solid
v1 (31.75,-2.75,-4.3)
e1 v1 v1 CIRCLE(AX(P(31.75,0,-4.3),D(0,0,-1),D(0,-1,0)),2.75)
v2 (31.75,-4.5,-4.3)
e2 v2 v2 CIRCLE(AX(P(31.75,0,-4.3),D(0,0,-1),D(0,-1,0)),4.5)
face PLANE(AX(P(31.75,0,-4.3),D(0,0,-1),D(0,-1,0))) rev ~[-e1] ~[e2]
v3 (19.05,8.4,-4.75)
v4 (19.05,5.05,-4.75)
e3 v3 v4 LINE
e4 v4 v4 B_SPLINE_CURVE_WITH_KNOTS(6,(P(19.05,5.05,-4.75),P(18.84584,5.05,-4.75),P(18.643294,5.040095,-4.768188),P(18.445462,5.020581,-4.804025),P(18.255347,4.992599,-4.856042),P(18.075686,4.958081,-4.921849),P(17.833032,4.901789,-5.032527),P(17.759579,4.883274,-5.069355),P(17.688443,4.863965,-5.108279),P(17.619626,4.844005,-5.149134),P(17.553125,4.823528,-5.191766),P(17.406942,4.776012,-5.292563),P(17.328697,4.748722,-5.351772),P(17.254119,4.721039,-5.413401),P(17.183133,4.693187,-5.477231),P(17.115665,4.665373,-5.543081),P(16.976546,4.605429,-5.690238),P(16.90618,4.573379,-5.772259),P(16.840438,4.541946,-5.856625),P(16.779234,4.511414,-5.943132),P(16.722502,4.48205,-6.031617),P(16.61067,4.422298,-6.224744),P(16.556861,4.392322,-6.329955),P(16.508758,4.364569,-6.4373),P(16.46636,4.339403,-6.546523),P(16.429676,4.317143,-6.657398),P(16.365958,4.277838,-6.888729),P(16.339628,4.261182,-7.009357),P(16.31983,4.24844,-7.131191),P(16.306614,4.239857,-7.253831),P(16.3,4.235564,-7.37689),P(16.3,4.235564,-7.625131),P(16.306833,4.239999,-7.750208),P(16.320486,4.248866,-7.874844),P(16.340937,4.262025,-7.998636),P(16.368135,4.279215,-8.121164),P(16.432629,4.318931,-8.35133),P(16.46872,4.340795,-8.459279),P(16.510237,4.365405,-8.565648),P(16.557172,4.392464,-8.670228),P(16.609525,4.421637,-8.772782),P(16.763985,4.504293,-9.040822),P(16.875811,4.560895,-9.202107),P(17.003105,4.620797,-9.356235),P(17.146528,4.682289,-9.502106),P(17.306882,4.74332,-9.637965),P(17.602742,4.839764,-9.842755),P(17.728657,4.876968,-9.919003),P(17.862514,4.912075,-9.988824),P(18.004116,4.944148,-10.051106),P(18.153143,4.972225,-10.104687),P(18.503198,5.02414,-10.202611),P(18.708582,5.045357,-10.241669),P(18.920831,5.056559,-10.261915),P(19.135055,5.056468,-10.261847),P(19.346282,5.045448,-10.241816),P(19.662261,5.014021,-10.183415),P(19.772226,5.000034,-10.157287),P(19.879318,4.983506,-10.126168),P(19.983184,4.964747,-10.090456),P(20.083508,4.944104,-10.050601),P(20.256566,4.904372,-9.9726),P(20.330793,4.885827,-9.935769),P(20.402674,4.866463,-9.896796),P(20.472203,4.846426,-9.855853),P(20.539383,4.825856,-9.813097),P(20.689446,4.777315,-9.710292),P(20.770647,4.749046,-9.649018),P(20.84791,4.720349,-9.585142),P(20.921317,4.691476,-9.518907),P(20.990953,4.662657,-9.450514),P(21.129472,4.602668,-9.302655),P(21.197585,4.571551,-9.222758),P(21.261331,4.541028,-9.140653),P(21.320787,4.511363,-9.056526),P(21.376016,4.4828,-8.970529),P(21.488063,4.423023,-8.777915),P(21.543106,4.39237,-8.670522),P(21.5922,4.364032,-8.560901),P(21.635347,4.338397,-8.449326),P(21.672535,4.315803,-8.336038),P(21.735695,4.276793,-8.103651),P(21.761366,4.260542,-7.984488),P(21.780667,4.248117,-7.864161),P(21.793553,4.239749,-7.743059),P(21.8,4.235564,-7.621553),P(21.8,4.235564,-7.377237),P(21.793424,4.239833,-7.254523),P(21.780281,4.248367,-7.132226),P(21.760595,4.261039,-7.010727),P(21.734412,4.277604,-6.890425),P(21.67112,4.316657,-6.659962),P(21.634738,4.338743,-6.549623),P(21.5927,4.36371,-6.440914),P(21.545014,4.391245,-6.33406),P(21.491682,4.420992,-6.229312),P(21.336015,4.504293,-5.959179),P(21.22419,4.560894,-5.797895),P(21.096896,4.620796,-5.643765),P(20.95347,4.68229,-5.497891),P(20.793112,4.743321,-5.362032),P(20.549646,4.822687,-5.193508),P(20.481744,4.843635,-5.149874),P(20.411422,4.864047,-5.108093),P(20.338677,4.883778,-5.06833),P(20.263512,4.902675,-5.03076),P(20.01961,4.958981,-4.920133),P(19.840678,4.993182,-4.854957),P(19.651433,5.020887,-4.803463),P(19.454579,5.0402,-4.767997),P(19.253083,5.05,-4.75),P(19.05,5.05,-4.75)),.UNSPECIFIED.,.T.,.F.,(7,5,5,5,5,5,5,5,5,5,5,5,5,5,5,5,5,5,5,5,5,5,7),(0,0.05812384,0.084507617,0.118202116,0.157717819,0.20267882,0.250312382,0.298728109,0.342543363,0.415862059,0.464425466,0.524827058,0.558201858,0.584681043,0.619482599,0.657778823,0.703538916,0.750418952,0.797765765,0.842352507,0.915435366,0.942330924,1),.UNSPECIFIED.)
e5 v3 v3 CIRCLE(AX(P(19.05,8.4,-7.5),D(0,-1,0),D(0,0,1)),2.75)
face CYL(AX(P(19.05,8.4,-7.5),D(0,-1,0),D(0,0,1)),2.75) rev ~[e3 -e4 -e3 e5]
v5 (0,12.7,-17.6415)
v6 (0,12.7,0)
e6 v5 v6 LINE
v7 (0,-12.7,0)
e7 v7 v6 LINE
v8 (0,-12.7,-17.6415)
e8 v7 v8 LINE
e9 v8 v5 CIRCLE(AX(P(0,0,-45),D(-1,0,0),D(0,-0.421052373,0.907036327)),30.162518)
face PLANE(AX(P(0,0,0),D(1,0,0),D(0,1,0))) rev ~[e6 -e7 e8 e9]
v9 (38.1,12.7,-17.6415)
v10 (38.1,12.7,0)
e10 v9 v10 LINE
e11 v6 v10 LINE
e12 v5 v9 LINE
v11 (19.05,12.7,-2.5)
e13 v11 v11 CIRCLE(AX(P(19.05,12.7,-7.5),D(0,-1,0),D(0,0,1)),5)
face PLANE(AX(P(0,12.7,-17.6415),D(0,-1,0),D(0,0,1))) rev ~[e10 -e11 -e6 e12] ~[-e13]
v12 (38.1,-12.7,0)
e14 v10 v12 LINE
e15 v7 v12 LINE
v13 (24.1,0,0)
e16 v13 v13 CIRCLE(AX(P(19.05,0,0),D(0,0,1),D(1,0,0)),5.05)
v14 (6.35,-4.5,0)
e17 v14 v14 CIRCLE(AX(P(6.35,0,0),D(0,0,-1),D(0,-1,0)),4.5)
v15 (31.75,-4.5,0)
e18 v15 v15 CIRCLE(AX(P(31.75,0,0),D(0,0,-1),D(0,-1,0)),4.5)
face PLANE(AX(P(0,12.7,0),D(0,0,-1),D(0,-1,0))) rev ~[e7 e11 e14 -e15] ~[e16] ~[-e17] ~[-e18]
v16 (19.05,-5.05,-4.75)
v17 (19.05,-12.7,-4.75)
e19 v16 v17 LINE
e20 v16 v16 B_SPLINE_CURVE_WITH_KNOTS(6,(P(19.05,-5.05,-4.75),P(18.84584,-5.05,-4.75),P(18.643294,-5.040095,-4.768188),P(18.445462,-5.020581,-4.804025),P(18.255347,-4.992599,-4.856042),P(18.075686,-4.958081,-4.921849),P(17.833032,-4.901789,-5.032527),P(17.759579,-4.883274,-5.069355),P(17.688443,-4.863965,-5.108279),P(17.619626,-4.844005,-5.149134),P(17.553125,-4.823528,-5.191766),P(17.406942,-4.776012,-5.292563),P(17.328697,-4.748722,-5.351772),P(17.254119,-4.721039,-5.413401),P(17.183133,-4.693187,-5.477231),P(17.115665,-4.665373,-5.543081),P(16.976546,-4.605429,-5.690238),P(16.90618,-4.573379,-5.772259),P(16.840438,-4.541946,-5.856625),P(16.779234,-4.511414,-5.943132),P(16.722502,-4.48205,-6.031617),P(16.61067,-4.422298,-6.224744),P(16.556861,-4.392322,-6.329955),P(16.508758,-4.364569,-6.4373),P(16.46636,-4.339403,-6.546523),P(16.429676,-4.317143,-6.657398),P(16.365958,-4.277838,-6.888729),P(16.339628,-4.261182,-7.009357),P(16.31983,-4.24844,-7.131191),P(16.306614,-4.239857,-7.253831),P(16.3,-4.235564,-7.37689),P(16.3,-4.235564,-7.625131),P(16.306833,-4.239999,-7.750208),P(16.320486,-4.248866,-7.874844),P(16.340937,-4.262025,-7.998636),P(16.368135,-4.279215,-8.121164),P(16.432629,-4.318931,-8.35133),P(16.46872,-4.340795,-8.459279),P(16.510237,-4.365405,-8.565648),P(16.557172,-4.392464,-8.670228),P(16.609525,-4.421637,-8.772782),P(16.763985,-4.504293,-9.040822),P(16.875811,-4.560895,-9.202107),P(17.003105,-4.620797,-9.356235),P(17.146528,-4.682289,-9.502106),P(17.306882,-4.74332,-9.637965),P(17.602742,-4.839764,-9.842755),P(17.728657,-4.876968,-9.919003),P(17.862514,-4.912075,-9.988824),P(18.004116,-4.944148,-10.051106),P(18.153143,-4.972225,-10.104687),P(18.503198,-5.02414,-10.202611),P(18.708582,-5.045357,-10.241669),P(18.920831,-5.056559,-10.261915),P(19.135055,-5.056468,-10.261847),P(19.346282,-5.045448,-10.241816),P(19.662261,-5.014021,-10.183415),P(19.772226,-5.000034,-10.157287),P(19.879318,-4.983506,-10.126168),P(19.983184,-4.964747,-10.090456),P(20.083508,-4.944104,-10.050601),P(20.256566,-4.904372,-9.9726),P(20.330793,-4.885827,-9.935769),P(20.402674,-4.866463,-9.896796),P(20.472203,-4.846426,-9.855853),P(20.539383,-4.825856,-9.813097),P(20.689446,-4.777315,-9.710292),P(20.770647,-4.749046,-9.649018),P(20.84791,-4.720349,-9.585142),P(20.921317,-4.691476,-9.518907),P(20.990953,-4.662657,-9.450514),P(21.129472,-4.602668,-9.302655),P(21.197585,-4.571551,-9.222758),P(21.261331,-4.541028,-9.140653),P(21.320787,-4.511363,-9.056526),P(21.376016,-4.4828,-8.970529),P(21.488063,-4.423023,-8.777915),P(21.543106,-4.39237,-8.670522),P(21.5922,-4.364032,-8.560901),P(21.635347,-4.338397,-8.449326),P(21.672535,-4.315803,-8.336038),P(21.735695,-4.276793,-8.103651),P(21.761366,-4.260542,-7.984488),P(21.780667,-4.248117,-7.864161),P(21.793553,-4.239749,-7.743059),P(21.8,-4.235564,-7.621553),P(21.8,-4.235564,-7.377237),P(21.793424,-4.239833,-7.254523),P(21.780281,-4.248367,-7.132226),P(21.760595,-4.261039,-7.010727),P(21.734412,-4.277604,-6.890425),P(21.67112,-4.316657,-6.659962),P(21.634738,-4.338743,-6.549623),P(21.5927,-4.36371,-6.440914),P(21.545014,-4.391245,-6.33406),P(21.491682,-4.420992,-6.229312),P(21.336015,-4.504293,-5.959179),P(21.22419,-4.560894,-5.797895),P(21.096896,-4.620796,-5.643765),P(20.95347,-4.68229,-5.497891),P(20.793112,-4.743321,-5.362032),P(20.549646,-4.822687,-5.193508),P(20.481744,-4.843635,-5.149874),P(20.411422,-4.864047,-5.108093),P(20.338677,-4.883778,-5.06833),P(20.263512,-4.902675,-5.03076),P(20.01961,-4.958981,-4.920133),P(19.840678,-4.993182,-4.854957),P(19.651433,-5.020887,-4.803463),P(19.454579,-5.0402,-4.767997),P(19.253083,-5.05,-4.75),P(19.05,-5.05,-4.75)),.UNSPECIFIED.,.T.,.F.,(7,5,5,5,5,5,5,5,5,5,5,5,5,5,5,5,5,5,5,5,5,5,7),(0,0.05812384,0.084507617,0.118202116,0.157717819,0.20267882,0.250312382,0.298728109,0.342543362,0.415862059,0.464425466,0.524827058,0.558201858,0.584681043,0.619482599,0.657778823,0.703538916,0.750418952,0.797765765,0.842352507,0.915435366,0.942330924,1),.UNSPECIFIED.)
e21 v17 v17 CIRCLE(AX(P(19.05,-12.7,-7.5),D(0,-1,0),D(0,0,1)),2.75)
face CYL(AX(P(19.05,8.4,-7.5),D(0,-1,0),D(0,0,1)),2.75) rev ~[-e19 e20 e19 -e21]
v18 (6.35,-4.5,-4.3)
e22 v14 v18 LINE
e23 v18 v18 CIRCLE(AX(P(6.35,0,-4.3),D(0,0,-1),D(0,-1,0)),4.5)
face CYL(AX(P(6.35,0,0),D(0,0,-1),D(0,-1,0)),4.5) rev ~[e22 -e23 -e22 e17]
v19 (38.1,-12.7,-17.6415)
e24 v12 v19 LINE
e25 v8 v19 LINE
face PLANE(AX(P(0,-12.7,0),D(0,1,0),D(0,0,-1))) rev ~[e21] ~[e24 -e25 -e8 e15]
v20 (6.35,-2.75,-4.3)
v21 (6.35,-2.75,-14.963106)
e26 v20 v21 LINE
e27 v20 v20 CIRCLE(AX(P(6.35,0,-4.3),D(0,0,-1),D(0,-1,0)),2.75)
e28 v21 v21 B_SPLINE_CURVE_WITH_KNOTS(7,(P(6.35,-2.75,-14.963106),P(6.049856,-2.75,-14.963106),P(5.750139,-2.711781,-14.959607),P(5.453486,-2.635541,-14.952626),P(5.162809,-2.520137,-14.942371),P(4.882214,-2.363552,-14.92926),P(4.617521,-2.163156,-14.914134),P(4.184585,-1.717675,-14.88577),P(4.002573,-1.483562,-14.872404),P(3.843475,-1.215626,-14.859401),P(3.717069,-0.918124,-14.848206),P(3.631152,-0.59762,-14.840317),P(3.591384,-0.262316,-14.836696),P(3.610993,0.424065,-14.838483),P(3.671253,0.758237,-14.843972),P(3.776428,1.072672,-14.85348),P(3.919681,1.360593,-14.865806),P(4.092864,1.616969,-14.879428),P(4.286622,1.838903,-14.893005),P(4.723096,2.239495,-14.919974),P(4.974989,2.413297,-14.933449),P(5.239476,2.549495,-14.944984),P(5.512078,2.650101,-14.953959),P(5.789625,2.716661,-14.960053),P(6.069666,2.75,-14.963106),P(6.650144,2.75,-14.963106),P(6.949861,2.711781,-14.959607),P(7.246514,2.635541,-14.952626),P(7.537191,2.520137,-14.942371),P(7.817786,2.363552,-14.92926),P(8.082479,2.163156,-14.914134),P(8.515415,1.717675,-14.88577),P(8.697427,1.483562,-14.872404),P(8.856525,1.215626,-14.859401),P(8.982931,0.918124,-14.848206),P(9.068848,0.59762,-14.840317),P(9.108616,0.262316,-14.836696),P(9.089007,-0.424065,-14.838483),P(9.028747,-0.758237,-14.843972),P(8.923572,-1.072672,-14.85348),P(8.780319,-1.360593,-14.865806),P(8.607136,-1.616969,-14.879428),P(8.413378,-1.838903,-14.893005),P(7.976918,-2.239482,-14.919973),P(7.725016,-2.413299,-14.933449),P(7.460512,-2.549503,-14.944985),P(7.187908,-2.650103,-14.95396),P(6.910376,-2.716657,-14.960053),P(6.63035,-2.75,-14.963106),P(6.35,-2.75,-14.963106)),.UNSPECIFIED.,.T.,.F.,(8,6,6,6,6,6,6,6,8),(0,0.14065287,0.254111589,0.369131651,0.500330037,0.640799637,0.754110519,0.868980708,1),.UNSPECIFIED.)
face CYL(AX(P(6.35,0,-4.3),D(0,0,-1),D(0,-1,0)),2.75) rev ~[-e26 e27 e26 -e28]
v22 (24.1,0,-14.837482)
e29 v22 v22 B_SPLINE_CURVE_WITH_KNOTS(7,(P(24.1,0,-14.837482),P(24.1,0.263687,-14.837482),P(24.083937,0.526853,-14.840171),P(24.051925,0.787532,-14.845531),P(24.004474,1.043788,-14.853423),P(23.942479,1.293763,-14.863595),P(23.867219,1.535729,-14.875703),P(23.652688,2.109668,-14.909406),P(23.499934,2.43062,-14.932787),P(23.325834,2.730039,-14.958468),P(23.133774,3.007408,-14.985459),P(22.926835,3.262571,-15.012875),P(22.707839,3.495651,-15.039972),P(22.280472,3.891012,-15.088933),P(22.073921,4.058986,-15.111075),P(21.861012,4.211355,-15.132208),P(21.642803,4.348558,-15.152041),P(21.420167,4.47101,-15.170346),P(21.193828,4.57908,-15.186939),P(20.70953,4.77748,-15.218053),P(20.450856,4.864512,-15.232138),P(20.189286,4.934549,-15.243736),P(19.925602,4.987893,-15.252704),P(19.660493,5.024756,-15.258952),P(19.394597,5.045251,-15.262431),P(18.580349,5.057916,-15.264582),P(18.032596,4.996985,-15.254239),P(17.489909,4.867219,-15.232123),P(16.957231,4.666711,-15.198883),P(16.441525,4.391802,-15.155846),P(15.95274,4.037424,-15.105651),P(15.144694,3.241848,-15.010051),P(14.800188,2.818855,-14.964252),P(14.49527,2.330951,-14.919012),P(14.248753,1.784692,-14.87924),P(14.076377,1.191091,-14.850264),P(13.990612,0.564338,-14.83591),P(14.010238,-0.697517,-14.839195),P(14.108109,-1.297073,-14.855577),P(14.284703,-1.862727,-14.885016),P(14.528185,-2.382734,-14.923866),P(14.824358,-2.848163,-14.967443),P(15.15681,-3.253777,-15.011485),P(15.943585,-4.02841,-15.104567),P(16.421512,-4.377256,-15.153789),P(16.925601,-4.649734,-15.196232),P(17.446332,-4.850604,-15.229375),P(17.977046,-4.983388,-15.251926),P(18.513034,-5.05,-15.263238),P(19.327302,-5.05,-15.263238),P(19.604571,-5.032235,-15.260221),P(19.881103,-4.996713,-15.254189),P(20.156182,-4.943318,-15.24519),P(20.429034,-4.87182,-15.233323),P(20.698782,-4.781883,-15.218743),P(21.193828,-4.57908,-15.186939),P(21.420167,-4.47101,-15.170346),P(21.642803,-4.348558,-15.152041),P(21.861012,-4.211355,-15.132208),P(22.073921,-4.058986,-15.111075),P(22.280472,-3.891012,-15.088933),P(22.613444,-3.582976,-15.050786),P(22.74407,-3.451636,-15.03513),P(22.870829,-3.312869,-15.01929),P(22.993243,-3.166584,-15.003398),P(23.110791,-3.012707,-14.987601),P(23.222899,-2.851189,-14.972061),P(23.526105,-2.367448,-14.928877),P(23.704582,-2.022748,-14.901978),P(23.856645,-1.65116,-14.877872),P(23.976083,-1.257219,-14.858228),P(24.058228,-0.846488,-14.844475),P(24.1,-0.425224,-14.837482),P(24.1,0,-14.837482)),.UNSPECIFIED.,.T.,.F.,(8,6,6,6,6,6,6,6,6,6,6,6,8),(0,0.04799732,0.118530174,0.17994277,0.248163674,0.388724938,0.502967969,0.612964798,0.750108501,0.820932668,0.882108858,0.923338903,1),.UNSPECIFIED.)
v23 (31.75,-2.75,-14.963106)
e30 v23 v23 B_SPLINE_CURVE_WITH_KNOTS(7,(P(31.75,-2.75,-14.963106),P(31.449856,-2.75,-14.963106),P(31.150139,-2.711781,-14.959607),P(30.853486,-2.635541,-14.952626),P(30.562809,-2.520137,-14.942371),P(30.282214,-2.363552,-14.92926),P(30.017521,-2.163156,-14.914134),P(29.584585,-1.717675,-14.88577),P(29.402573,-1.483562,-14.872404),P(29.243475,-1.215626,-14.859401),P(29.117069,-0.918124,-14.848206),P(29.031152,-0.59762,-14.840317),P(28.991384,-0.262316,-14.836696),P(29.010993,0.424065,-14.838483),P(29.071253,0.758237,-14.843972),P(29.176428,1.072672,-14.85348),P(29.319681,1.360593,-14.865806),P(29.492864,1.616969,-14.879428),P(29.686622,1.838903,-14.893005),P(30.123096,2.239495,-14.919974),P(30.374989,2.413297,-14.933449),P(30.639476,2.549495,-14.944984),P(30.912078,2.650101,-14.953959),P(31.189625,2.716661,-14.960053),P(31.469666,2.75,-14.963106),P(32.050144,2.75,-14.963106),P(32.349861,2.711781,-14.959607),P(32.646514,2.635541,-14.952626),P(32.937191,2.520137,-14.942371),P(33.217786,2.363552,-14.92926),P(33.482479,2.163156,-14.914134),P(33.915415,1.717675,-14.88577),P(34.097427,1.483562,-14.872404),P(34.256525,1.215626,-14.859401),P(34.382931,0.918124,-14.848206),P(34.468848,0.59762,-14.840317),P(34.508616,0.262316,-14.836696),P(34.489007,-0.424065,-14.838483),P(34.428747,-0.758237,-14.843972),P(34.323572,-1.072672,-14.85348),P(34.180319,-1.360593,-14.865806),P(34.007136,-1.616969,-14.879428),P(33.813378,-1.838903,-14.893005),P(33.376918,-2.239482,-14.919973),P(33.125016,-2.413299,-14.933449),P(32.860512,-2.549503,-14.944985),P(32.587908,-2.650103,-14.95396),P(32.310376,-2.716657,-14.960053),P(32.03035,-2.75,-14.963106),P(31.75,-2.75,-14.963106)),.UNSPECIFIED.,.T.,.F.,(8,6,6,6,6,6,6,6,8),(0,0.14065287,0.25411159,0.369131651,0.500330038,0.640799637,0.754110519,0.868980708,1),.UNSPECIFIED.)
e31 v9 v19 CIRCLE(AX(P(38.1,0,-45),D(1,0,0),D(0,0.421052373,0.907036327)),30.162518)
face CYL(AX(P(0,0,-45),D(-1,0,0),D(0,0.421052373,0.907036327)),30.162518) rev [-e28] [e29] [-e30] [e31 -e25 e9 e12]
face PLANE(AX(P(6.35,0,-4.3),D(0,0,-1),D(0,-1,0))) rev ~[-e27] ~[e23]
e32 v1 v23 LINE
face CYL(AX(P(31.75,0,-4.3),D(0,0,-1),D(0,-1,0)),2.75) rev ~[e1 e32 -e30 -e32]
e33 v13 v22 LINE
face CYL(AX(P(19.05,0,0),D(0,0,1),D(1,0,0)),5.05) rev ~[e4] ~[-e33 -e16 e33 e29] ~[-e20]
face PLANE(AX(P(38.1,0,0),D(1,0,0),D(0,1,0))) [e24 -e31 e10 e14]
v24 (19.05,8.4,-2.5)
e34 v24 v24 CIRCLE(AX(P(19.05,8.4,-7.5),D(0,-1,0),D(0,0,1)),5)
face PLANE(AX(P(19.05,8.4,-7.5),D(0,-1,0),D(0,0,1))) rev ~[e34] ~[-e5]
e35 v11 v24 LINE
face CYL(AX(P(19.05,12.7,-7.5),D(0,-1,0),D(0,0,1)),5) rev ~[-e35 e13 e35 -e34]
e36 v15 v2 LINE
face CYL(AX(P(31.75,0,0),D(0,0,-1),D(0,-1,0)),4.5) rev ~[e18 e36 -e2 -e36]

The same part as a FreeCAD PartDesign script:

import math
import FreeCAD as App
import Part
import Sketcher
Q = App.Units.Quantity

doc = App.newDocument("Part")
body = doc.addObject("PartDesign::Body", "Body")

# Sketch on YZ plane
sketch1 = body.newObject("Sketcher::SketchObject", "Sketch")
sketch1.AttachmentSupport = (doc.getObject("YZ_Plane"), [""])
sketch1.MapMode = "FlatFace"
sketch1.addGeometry([
    Part.LineSegment(App.Vector(13, -18, 0), App.Vector(13, 0, 0)),
    Part.LineSegment(App.Vector(13, 0, 0), App.Vector(-13, 0, 0)),
    Part.LineSegment(App.Vector(-13, 0, 0), App.Vector(-13, -18, 0)),
    Part.ArcOfCircle(Part.Circle(App.Vector(0, -45, 0), App.Vector(0, 0, 1), 30), math.radians(65), math.radians(115)),
], False)
sketch1.addConstraint([
    Sketcher.Constraint("Coincident", 0, 2, 1, 1),
    Sketcher.Constraint("Coincident", 1, 2, 2, 1),
    Sketcher.Constraint("Coincident", 2, 2, 3, 2),
    Sketcher.Constraint("Coincident", 3, 1, 0, 1),
    Sketcher.Constraint("Vertical", 0),
    Sketcher.Constraint("Horizontal", 1),
    Sketcher.Constraint("Vertical", 2),
    Sketcher.Constraint("Symmetric", 0, 2, 1, 2, -1, 1),
    Sketcher.Constraint("PointOnObject", 3, 3, -2),
    Sketcher.Constraint("DistanceX", 1, 2, 1, 1, Q("1 in")),
    Sketcher.Constraint("Radius", 3, Q("1.1875 in")),
    Sketcher.Constraint("DistanceY", 3, 3, -1, 1, 45.0),
])
pad1 = body.newObject("PartDesign::Pad", "Pad")
pad1.Profile = sketch1
pad1.Length = Q("1.5 in")

# Sketch on XY plane
sketch2 = body.newObject("Sketcher::SketchObject", "Sketch001")
sketch2.AttachmentSupport = (doc.getObject("XY_Plane"), [""])
sketch2.MapMode = "FlatFace"
sketch2.addGeometry(Part.Circle(App.Vector(19, 0, 0), App.Vector(0, 0, 1), 5), False)
sketch2.addConstraint([
    Sketcher.Constraint("PointOnObject", 0, 3, -1),
    Sketcher.Constraint("Diameter", 0, 10.1),
    Sketcher.Constraint("DistanceX", -1, 1, 0, 3, Q("0.75 in")),
])
pocket1 = body.newObject("PartDesign::Pocket", "Pocket")
pocket1.Profile = sketch2
pocket1.Type = "ThroughAll"

# Sketch on XZ plane
sketch3 = body.newObject("Sketcher::SketchObject", "Sketch002")
sketch3.AttachmentSupport = (doc.getObject("XZ_Plane"), [""])
sketch3.MapMode = "FlatFace"
sketch3.AttachmentOffset = App.Placement(App.Vector(0, 0, -0.5 * 25.4), App.Rotation())
sketch3.addGeometry(Part.Circle(App.Vector(19.1, -7.5, 0), App.Vector(0, 0, 1), 2.8), False)
sketch3.addConstraint([
    Sketcher.Constraint("Diameter", 0, 5.5),
    Sketcher.Constraint("DistanceX", -1, 1, 0, 3, Q("0.75 in")),
    Sketcher.Constraint("DistanceY", 0, 3, -1, 1, 7.5),
])
doc.recompute()
hole = body.newObject("PartDesign::Hole", "Hole")
hole.Profile = sketch3
hole.ThreadType = "None"
hole.Diameter = 5.5
hole.DepthType = "ThroughAll"
hole.HoleCutType = "Counterbore"
hole.HoleCutDiameter = Q("0.3937008 in")
hole.HoleCutDepth = Q("0.1692913 in")
hole.Reversed = True

# Sketch on XY plane
sketch4 = body.newObject("Sketcher::SketchObject", "Sketch003")
sketch4.AttachmentSupport = (doc.getObject("XY_Plane"), [""])
sketch4.MapMode = "FlatFace"
sketch4.addGeometry([
    Part.Circle(App.Vector(31.8, 0, 0), App.Vector(0, 0, 1), 2.8),
    Part.Circle(App.Vector(6.3, 0, 0), App.Vector(0, 0, 1), 2.8),
], False)
sketch4.addConstraint([
    Sketcher.Constraint("Equal", 0, 1),
    Sketcher.Constraint("PointOnObject", 0, 3, -1),
    Sketcher.Constraint("PointOnObject", 1, 3, -1),
    Sketcher.Constraint("DistanceX", 1, 3, 0, 3, Q("1 in")),
    Sketcher.Constraint("Diameter", 0, 5.5),
    Sketcher.Constraint("DistanceX", -1, 1, 0, 3, Q("1.25 in")),
])
doc.recompute()
hole2 = body.newObject("PartDesign::Hole", "Hole001")
hole2.Profile = sketch4
hole2.ThreadType = "None"
hole2.Diameter = 5.5
hole2.DepthType = "ThroughAll"
hole2.HoleCutType = "Counterbore"
hole2.HoleCutDiameter = 9
hole2.HoleCutDepth = Q("0.1692913 in")

doc.recompute()
